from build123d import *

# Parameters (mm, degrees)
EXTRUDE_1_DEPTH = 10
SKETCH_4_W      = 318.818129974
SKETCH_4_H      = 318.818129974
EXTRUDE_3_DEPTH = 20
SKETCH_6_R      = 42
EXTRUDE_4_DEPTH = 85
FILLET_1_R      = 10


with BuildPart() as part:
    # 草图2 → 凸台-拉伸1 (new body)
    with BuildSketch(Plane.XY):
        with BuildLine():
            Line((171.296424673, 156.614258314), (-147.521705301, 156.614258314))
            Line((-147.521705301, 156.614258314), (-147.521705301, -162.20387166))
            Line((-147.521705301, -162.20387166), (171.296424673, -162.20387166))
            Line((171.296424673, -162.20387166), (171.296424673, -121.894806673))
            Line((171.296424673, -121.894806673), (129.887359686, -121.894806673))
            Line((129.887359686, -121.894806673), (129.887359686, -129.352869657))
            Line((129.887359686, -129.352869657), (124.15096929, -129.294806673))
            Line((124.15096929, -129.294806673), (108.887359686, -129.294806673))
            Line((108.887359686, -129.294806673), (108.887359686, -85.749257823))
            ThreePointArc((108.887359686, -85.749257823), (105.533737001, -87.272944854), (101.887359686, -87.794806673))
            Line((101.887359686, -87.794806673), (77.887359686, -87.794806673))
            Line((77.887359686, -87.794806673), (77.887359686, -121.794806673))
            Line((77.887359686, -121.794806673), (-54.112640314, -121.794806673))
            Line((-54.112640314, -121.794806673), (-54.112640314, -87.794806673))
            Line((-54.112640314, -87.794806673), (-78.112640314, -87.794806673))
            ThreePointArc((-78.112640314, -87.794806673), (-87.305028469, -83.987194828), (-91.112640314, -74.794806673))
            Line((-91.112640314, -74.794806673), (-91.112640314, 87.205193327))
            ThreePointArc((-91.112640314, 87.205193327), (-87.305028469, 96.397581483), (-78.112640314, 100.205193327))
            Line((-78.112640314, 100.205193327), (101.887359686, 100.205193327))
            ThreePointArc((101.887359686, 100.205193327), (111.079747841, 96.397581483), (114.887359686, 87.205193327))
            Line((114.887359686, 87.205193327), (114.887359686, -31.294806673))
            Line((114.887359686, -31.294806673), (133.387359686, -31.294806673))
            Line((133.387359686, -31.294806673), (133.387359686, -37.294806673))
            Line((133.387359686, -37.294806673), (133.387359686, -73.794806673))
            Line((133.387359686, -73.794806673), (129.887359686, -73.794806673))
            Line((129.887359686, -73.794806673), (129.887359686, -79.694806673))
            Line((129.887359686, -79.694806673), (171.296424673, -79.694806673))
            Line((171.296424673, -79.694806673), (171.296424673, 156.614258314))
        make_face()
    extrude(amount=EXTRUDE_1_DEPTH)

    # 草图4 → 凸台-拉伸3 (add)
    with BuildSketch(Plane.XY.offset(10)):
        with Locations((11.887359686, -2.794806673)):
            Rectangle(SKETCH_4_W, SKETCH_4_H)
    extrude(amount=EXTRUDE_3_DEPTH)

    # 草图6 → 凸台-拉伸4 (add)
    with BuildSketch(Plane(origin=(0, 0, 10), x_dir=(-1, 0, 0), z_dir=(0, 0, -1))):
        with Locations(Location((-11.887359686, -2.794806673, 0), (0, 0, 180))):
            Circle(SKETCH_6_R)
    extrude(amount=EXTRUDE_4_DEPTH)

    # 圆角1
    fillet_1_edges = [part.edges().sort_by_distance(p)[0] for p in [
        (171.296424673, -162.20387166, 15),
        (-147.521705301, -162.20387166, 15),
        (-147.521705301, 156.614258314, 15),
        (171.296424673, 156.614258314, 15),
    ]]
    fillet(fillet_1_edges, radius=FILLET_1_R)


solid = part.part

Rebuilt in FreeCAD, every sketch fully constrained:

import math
import FreeCAD as App
import Part
import Sketcher


def edges_at(feature, points):
    """Names of the edges that pass closest to the given points."""
    edges = feature.Shape.Edges
    near = lambda p: min(range(len(edges)), key=lambda i: edges[i].distToShape(Part.Vertex(*p))[0])
    return sorted({f"Edge{near(p) + 1}" for p in points})


def add_polygon(sketch, points):
    """Adds a closed chain of lines whose ends are joined by coincident constraints."""
    first, n = sketch.GeometryCount, len(points)
    for a, b in zip(points, points[1:] + points[:1]):
        sketch.addGeometry(Part.LineSegment(App.Vector(*a, 0), App.Vector(*b, 0)), False)
    for i in range(n):
        sketch.addConstraint(Sketcher.Constraint("Coincident", first + i, 2, first + (i + 1) % n, 1))

doc = App.newDocument("Part")
body = doc.addObject("PartDesign::Body", "Body")

sketch1 = body.newObject("Sketcher::SketchObject", "Sketch")
sketch1.AttachmentSupport = (doc.getObject("XY_Plane"), [""])
sketch1.MapMode = "FlatFace"
sketch1.addGeometry(Part.LineSegment(App.Vector(171.296425, 156.614258, 0), App.Vector(-147.521705, 156.614258, 0)), False)
sketch1.addGeometry(Part.LineSegment(App.Vector(-147.521705, 156.614258, 0), App.Vector(-147.521705, -162.203872, 0)), False)
sketch1.addGeometry(Part.LineSegment(App.Vector(-147.521705, -162.203872, 0), App.Vector(171.296425, -162.203872, 0)), False)
sketch1.addGeometry(Part.LineSegment(App.Vector(171.296425, -162.203872, 0), App.Vector(171.296425, -121.894807, 0)), False)
sketch1.addGeometry(Part.LineSegment(App.Vector(171.296425, -121.894807, 0), App.Vector(129.88736, -121.894807, 0)), False)
sketch1.addGeometry(Part.LineSegment(App.Vector(129.88736, -121.894807, 0), App.Vector(129.88736, -129.35287, 0)), False)
sketch1.addGeometry(Part.LineSegment(App.Vector(129.88736, -129.35287, 0), App.Vector(124.150969, -129.294807, 0)), False)
sketch1.addGeometry(Part.LineSegment(App.Vector(124.150969, -129.294807, 0), App.Vector(108.88736, -129.294807, 0)), False)
sketch1.addGeometry(Part.LineSegment(App.Vector(108.88736, -129.294807, 0), App.Vector(108.88736, -85.749258, 0)), False)
sketch1.addGeometry(Part.ArcOfCircle(Part.Circle(App.Vector(101.88736, -74.794807, 0), App.Vector(0, 0, 1), 13), math.radians(-90), math.radians(-57.42103)), False)
sketch1.addGeometry(Part.LineSegment(App.Vector(101.88736, -87.794807, 0), App.Vector(77.88736, -87.794807, 0)), False)
sketch1.addGeometry(Part.LineSegment(App.Vector(77.88736, -87.794807, 0), App.Vector(77.88736, -121.794807, 0)), False)
sketch1.addGeometry(Part.LineSegment(App.Vector(77.88736, -121.794807, 0), App.Vector(-54.11264, -121.794807, 0)), False)
sketch1.addGeometry(Part.LineSegment(App.Vector(-54.11264, -121.794807, 0), App.Vector(-54.11264, -87.794807, 0)), False)
sketch1.addGeometry(Part.LineSegment(App.Vector(-54.11264, -87.794807, 0), App.Vector(-78.11264, -87.794807, 0)), False)
sketch1.addGeometry(Part.ArcOfCircle(Part.Circle(App.Vector(-78.11264, -74.794807, 0), App.Vector(0, 0, 1), 13), math.radians(-180), math.radians(-90)), False)
sketch1.addGeometry(Part.LineSegment(App.Vector(-91.11264, -74.794807, 0), App.Vector(-91.11264, 87.205193, 0)), False)
sketch1.addGeometry(Part.ArcOfCircle(Part.Circle(App.Vector(-78.11264, 87.205193, 0), App.Vector(0, 0, 1), 13), math.radians(90), math.radians(180)), False)
sketch1.addGeometry(Part.LineSegment(App.Vector(-78.11264, 100.205193, 0), App.Vector(101.88736, 100.205193, 0)), False)
sketch1.addGeometry(Part.ArcOfCircle(Part.Circle(App.Vector(101.88736, 87.205193, 0), App.Vector(0, 0, 1), 13), math.radians(0), math.radians(90)), False)
sketch1.addGeometry(Part.LineSegment(App.Vector(114.88736, 87.205193, 0), App.Vector(114.88736, -31.294807, 0)), False)
sketch1.addGeometry(Part.LineSegment(App.Vector(114.88736, -31.294807, 0), App.Vector(133.38736, -31.294807, 0)), False)
sketch1.addGeometry(Part.LineSegment(App.Vector(133.38736, -31.294807, 0), App.Vector(133.38736, -73.794807, 0)), False)
sketch1.addGeometry(Part.LineSegment(App.Vector(133.38736, -73.794807, 0), App.Vector(129.88736, -73.794807, 0)), False)
sketch1.addGeometry(Part.LineSegment(App.Vector(129.88736, -73.794807, 0), App.Vector(129.88736, -79.694807, 0)), False)
sketch1.addGeometry(Part.LineSegment(App.Vector(129.88736, -79.694807, 0), App.Vector(171.296425, -79.694807, 0)), False)
sketch1.addGeometry(Part.LineSegment(App.Vector(171.296425, -79.694807, 0), App.Vector(171.296425, 156.614258, 0)), False)
sketch1.addConstraint(Sketcher.Constraint("Coincident", 0, 2, 1, 1))
sketch1.addConstraint(Sketcher.Constraint("Coincident", 1, 2, 2, 1))
sketch1.addConstraint(Sketcher.Constraint("Coincident", 2, 2, 3, 1))
sketch1.addConstraint(Sketcher.Constraint("Coincident", 3, 2, 4, 1))
sketch1.addConstraint(Sketcher.Constraint("Coincident", 4, 2, 5, 1))
sketch1.addConstraint(Sketcher.Constraint("Coincident", 5, 2, 6, 1))
sketch1.addConstraint(Sketcher.Constraint("Coincident", 6, 2, 7, 1))
sketch1.addConstraint(Sketcher.Constraint("Coincident", 7, 2, 8, 1))
sketch1.addConstraint(Sketcher.Constraint("Coincident", 8, 2, 9, 2))
sketch1.addConstraint(Sketcher.Constraint("Tangent", 9, 1, 10, 1))
sketch1.addConstraint(Sketcher.Constraint("Coincident", 10, 2, 11, 1))
sketch1.addConstraint(Sketcher.Constraint("Coincident", 11, 2, 12, 1))
sketch1.addConstraint(Sketcher.Constraint("Coincident", 12, 2, 13, 1))
sketch1.addConstraint(Sketcher.Constraint("Coincident", 13, 2, 14, 1))
sketch1.addConstraint(Sketcher.Constraint("Tangent", 14, 2, 15, 2))
sketch1.addConstraint(Sketcher.Constraint("Tangent", 15, 1, 16, 1))
sketch1.addConstraint(Sketcher.Constraint("Tangent", 16, 2, 17, 2))
sketch1.addConstraint(Sketcher.Constraint("Tangent", 17, 1, 18, 1))
sketch1.addConstraint(Sketcher.Constraint("Tangent", 18, 2, 19, 2))
sketch1.addConstraint(Sketcher.Constraint("Tangent", 19, 1, 20, 1))
sketch1.addConstraint(Sketcher.Constraint("Coincident", 20, 2, 21, 1))
sketch1.addConstraint(Sketcher.Constraint("Coincident", 21, 2, 22, 1))
sketch1.addConstraint(Sketcher.Constraint("Coincident", 22, 2, 23, 1))
sketch1.addConstraint(Sketcher.Constraint("Coincident", 23, 2, 24, 1))
sketch1.addConstraint(Sketcher.Constraint("Coincident", 24, 2, 25, 1))
sketch1.addConstraint(Sketcher.Constraint("Coincident", 25, 2, 26, 1))
sketch1.addConstraint(Sketcher.Constraint("Coincident", 26, 2, 0, 1))
sketch1.addConstraint(Sketcher.Constraint("Horizontal", 0))
sketch1.addConstraint(Sketcher.Constraint("Vertical", 1))
sketch1.addConstraint(Sketcher.Constraint("Horizontal", 2))
sketch1.addConstraint(Sketcher.Constraint("Vertical", 3))
sketch1.addConstraint(Sketcher.Constraint("Horizontal", 4))
sketch1.addConstraint(Sketcher.Constraint("Vertical", 5))
sketch1.addConstraint(Sketcher.Constraint("Horizontal", 7))
sketch1.addConstraint(Sketcher.Constraint("Vertical", 8))
sketch1.addConstraint(Sketcher.Constraint("Horizontal", 10))
sketch1.addConstraint(Sketcher.Constraint("Vertical", 11))
sketch1.addConstraint(Sketcher.Constraint("Horizontal", 12))
sketch1.addConstraint(Sketcher.Constraint("Vertical", 13))
sketch1.addConstraint(Sketcher.Constraint("Horizontal", 14))
sketch1.addConstraint(Sketcher.Constraint("Vertical", 16))
sketch1.addConstraint(Sketcher.Constraint("Horizontal", 18))
sketch1.addConstraint(Sketcher.Constraint("Vertical", 20))
sketch1.addConstraint(Sketcher.Constraint("Horizontal", 21))
sketch1.addConstraint(Sketcher.Constraint("Vertical", 22))
sketch1.addConstraint(Sketcher.Constraint("Horizontal", 23))
sketch1.addConstraint(Sketcher.Constraint("Vertical", 24))
sketch1.addConstraint(Sketcher.Constraint("Horizontal", 25))
sketch1.addConstraint(Sketcher.Constraint("Vertical", 26))
sketch1.addConstraint(Sketcher.Constraint("Equal", 9, 15))
sketch1.addConstraint(Sketcher.Constraint("Equal", 15, 17))
sketch1.addConstraint(Sketcher.Constraint("Equal", 17, 19))
sketch1.addConstraint(Sketcher.Constraint("Horizontal", 9, 3, 15, 3))
sketch1.addConstraint(Sketcher.Constraint("Vertical", 9, 3, 19, 3))
sketch1.addConstraint(Sketcher.Constraint("Vertical", 5, 2, 23, 2))
sketch1.addConstraint(Sketcher.Constraint("Vertical", 3, 2, 25, 2))
sketch1.addConstraint(Sketcher.Constraint("Equal", 10, 14))
sketch1.addConstraint(Sketcher.Constraint("Equal", 2, 1))
sketch1.addConstraint(Sketcher.Constraint("Radius", 9, 13.0))
sketch1.addConstraint(Sketcher.Constraint("DistanceX", 10, 2, 10, 1, 24.0))
sketch1.addConstraint(Sketcher.Constraint("DistanceX", 12, 2, 12, 1, 132.0))
sketch1.addConstraint(Sketcher.Constraint("DistanceY", 11, 2, 11, 1, 34.0))
sketch1.addConstraint(Sketcher.Constraint("DistanceY", 16, 1, 16, 2, 162.0))
sketch1.addConstraint(Sketcher.Constraint("DistanceX", 21, 1, 21, 2, 18.5))
sketch1.addConstraint(Sketcher.Constraint("DistanceX", 23, 2, 23, 1, 3.5))
sketch1.addConstraint(Sketcher.Constraint("DistanceY", 20, 2, 20, 1, 118.5))
sketch1.addConstraint(Sketcher.Constraint("DistanceY", 22, 2, 22, 1, 42.5))
sketch1.addConstraint(Sketcher.Constraint("DistanceY", 24, 2, 24, 1, 5.9))
sketch1.addConstraint(Sketcher.Constraint("DistanceX", 7, 2, 5, 2, 21.0))
sketch1.addConstraint(Sketcher.Constraint("DistanceY", 3, 2, 9, 3, 47.1))
sketch1.addConstraint(Sketcher.Constraint("DistanceY", 6, 2, 4, 2, 7.4))
sketch1.addConstraint(Sketcher.Constraint("DistanceX", 0, 2, 0, 1, 318.81813))
sketch1.addConstraint(Sketcher.Constraint("DistanceX", 7, 2, 7, 1, 15.26361))
sketch1.addConstraint(Sketcher.Constraint("DistanceX", 4, 2, 4, 1, 41.409065))
sketch1.addConstraint(Sketcher.Constraint("DistanceY", 3, 1, 3, 2, 40.309065))
sketch1.addConstraint(Sketcher.Constraint("DistanceY", 5, 2, 5, 1, 7.458063))
sketch1.addConstraint(Sketcher.Constraint("DistanceX", -1, 1, 9, 3, 101.88736))
sketch1.addConstraint(Sketcher.Constraint("DistanceY", -1, 1, 0, 2, 156.614258))
pad1 = body.newObject("PartDesign::Pad", "Pad")
pad1.Profile = sketch1
pad1.Length = 10

sketch2 = body.newObject("Sketcher::SketchObject", "Sketch001")
sketch2.AttachmentSupport = (doc.getObject("XY_Plane"), [""])
sketch2.MapMode = "FlatFace"
sketch2.AttachmentOffset = App.Placement(App.Vector(0, 0, 10), App.Rotation())
add_polygon(sketch2, [(-147.521705, 156.614258), (-147.521705, -162.203872), (171.296425, -162.203872), (171.296425, 156.614258)])
sketch2.addConstraint(Sketcher.Constraint("Vertical", 0))
sketch2.addConstraint(Sketcher.Constraint("Horizontal", 1))
sketch2.addConstraint(Sketcher.Constraint("Vertical", 2))
sketch2.addConstraint(Sketcher.Constraint("Horizontal", 3))
sketch2.addConstraint(Sketcher.Constraint("Equal", 3, 0))
sketch2.addConstraint(Sketcher.Constraint("DistanceX", 1, 1, 1, 2, 318.81813))
sketch2.addConstraint(Sketcher.Constraint("DistanceY", 0, 2, -1, 1, 162.203872))
sketch2.addConstraint(Sketcher.Constraint("DistanceX", 0, 2, -1, 1, 147.521705))
pad2 = body.newObject("PartDesign::Pad", "Pad001")
pad2.Profile = sketch2
pad2.Length = 20

sketch3 = body.newObject("Sketcher::SketchObject", "Sketch002")
sketch3.AttachmentSupport = (doc.getObject("XY_Plane"), [""])
sketch3.MapMode = "FlatFace"
sketch3.AttachmentOffset = App.Placement(App.Vector(0, 0, 10), App.Rotation())
sketch3.addGeometry(Part.Circle(App.Vector(11.88736, -2.794807, 0), App.Vector(0, 0, 1), 42), False)
sketch3.addConstraint(Sketcher.Constraint("Diameter", 0, 84.0))
sketch3.addConstraint(Sketcher.Constraint("DistanceX", -1, 1, 0, 3, 11.88736))
sketch3.addConstraint(Sketcher.Constraint("DistanceY", 0, 3, -1, 1, 2.794807))
pad3 = body.newObject("PartDesign::Pad", "Pad002")
pad3.Profile = sketch3
pad3.Length = 85
pad3.Reversed = True
doc.recompute()

fillet = body.newObject("PartDesign::Fillet", "Fillet")
fillet.Base = (pad3, edges_at(pad3, [
    (171.296, -162.204, 15),
    (-147.522, -162.204, 15),
    (-147.522, 156.614, 15),
    (171.296, 156.614, 15),
]))
fillet.Radius = 10

doc.recompute()
